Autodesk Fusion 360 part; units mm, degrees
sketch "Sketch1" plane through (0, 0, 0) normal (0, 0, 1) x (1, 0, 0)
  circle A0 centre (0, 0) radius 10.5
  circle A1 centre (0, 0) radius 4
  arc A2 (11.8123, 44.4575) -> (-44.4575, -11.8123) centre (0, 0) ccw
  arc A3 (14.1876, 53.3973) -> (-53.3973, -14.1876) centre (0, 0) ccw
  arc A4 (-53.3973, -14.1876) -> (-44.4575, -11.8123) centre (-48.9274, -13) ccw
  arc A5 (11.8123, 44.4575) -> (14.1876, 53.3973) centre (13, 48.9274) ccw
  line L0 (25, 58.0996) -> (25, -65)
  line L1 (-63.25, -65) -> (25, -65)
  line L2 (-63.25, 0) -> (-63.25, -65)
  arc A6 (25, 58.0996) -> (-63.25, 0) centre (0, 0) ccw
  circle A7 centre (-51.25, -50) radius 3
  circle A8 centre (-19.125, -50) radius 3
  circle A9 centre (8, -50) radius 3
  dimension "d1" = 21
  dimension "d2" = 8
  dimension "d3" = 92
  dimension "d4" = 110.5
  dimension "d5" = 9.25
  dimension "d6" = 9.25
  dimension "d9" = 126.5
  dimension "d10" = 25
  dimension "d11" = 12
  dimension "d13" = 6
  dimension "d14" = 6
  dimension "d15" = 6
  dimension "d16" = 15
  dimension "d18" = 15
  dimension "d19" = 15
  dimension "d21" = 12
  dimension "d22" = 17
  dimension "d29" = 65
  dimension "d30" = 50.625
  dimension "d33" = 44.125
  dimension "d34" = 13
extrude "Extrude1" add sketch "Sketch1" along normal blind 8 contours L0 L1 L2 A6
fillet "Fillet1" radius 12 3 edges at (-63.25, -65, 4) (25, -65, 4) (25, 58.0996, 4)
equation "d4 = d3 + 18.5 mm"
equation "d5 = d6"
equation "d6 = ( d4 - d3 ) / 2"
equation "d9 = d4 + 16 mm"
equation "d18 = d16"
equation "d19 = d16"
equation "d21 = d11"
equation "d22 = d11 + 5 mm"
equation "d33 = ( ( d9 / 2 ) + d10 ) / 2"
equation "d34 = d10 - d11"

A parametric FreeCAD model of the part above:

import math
import FreeCAD as App
import Part
import Sketcher

V = App.Vector
Q = App.Units.Quantity


def edges_at(feature, points):
    """Names of the edges that pass closest to the given points."""
    edges = feature.Shape.Edges
    near = lambda p: min(range(len(edges)), key=lambda i: edges[i].distToShape(Part.Vertex(*p))[0])
    return sorted({f"Edge{near(p) + 1}" for p in points})

doc = App.newDocument("Part")
body = doc.addObject("PartDesign::Body", "Body")

# Sketch on XY plane
sketch1 = doc.addObject("Sketcher::SketchObject", "Sketch")
body.addObject(sketch1)
sketch1.AttachmentSupport = (doc.XY_Plane, [""])
sketch1.MapMode = "FlatFace"
sketch1.addGeometry(Part.LineSegment(V(25, -65, 0), V(25, 58.1, 0)), False)
sketch1.addGeometry(Part.ArcOfCircle(Part.Circle(V(0, 0, 0), V(0, 0, 1), 63.3), math.radians(67), math.radians(180)), False)
sketch1.addGeometry(Part.LineSegment(V(-63.2, 0, 0), V(-63.2, -65, 0)), False)
sketch1.addGeometry(Part.LineSegment(V(-63.2, -65, 0), V(25, -65, 0)), False)
sketch1.addGeometry(Part.Circle(V(-51.2, -50, 0), V(0, 0, 1), 3), False)
sketch1.addGeometry(Part.Circle(V(-19.1, -50, 0), V(0, 0, 1), 3), False)
sketch1.addGeometry(Part.Circle(V(8, -50, 0), V(0, 0, 1), 3), False)
sketch1.addGeometry(Part.Circle(V(0, 0, 0), V(0, 0, 1), 10.5), False)
sketch1.addGeometry(Part.ArcOfCircle(Part.Circle(V(13, 48.9, 0), V(0, 0, 1), 4.6), math.radians(-105), math.radians(75)), False)
sketch1.addGeometry(Part.ArcOfCircle(Part.Circle(V(0, 0, 0), V(0, 0, 1), 46), math.radians(75), math.radians(195)), False)
sketch1.addGeometry(Part.ArcOfCircle(Part.Circle(V(-48.9, -13, 0), V(0, 0, 1), 4.6), math.radians(-165), math.radians(15)), False)
sketch1.addGeometry(Part.ArcOfCircle(Part.Circle(V(0, 0, 0), V(0, 0, 1), 55.2), math.radians(75), math.radians(195)), False)
sketch1.addConstraint(Sketcher.Constraint("Coincident", 0, 2, 1, 1))
sketch1.addConstraint(Sketcher.Constraint("Tangent", 1, 2, 2, 1))
sketch1.addConstraint(Sketcher.Constraint("Coincident", 2, 2, 3, 1))
sketch1.addConstraint(Sketcher.Constraint("Coincident", 3, 2, 0, 1))
sketch1.addConstraint(Sketcher.Constraint("Tangent", 8, 1, 9, 1))
sketch1.addConstraint(Sketcher.Constraint("Tangent", 9, 2, 10, 2))
sketch1.addConstraint(Sketcher.Constraint("Tangent", 10, 1, 11, 2))
sketch1.addConstraint(Sketcher.Constraint("Tangent", 11, 1, 8, 2))
sketch1.addConstraint(Sketcher.Constraint("Vertical", 0))
sketch1.addConstraint(Sketcher.Constraint("Vertical", 2))
sketch1.addConstraint(Sketcher.Constraint("Horizontal", 3))
sketch1.addConstraint(Sketcher.Constraint("Coincident", 1, 3, -1, 1))
sketch1.addConstraint(Sketcher.Constraint("Coincident", 7, 3, -1, 1))
sketch1.addConstraint(Sketcher.Constraint("Coincident", 9, 3, -1, 1))
sketch1.addConstraint(Sketcher.Constraint("Coincident", 11, 3, -1, 1))
sketch1.addConstraint(Sketcher.Constraint("Equal", 4, 5))
sketch1.addConstraint(Sketcher.Constraint("Equal", 5, 6))
sketch1.addConstraint(Sketcher.Constraint("Horizontal", 4, 3, 5, 3))
sketch1.addConstraint(Sketcher.Constraint("Horizontal", 5, 3, 6, 3))
sketch1.addConstraint(Sketcher.Constraint("Diameter", 4, Q("6 mm")))
sketch1.addConstraint(Sketcher.Constraint("Diameter", 7, Q("21 mm")))
sketch1.addConstraint(Sketcher.Constraint("Radius", 9, Q("46 mm")))
sketch1.addConstraint(Sketcher.Constraint("DistanceY", 2, 2, 2, 1, Q("65 mm")))
sketch1.addConstraint(Sketcher.Constraint("Radius", 1, Q("63.25 mm")))
sketch1.addConstraint(Sketcher.Constraint("Radius", 11, Q("55.25 mm")))
sketch1.addConstraint(Sketcher.Constraint("DistanceX", -1, 1, 6, 3, Q("8 mm")))
sketch1.addConstraint(Sketcher.Constraint("DistanceX", -1, 1, 8, 3, Q("13 mm")))
sketch1.addConstraint(Sketcher.Constraint("DistanceY", 10, 3, -1, 1, Q("13 mm")))
sketch1.addConstraint(Sketcher.Constraint("DistanceX", -1, 1, 0, 2, Q("25 mm")))
sketch1.addConstraint(Sketcher.Constraint("DistanceX", 1, 2, 4, 3, Q("12 mm")))
sketch1.addConstraint(Sketcher.Constraint("DistanceY", 2, 2, 4, 3, Q("15 mm")))
sketch1.addConstraint(Sketcher.Constraint("DistanceX", 2, 2, 5, 3, Q("44.125 mm")))
pad1 = doc.addObject("PartDesign::Pad", "Pad")
body.addObject(pad1)
pad1.Profile = sketch1
pad1.Length = 8
doc.recompute()

fillet = doc.addObject("PartDesign::Fillet", "Fillet")
body.addObject(fillet)
fillet.Base = (pad1, edges_at(pad1, [(-63.25, -65, 4), (25, -65, 4), (25, 58.1, 4)]))
fillet.Radius = 12

doc.recompute()
